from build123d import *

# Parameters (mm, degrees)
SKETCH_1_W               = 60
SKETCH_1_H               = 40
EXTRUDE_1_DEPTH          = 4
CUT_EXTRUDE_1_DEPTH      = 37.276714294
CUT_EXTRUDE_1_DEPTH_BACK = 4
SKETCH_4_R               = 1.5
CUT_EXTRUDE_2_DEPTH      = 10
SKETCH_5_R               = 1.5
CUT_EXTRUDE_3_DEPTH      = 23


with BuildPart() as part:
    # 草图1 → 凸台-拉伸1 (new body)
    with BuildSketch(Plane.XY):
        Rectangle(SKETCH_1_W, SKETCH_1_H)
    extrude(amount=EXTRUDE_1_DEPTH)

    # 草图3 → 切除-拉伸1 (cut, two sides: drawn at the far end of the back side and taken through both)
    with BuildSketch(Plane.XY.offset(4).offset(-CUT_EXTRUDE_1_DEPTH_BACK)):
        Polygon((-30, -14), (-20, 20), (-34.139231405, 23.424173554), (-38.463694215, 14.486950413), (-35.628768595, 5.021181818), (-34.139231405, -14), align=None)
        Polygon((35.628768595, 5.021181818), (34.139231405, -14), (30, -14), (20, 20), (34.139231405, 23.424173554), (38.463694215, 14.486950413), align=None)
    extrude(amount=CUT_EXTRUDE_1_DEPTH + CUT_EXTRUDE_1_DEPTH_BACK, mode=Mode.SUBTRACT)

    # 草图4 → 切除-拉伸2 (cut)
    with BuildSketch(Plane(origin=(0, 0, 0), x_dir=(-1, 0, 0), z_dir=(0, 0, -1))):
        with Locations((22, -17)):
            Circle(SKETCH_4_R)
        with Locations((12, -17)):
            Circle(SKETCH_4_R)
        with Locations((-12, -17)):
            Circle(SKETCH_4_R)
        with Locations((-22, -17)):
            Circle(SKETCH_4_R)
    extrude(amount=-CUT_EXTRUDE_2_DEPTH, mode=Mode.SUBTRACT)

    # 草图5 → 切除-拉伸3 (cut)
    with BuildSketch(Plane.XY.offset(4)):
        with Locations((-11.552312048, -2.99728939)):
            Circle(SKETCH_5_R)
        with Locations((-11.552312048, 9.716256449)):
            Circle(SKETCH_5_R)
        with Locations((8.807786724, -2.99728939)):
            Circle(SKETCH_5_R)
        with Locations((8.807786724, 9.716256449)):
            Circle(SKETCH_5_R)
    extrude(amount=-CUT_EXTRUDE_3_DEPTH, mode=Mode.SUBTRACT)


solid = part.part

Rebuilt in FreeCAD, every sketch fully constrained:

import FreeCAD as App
import Part
import Sketcher

V = App.Vector
Q = App.Units.Quantity


def add_polygon(sketch, points):
    """Adds a closed chain of lines whose ends are joined by coincident constraints."""
    first, n = sketch.GeometryCount, len(points)
    for a, b in zip(points, points[1:] + points[:1]):
        sketch.addGeometry(Part.LineSegment(App.Vector(*a, 0), App.Vector(*b, 0)), False)
    for i in range(n):
        sketch.addConstraint(Sketcher.Constraint("Coincident", first + i, 2, first + (i + 1) % n, 1))

doc = App.newDocument("Part")
body = doc.addObject("PartDesign::Body", "Body")

# Sketch on XY plane
sketch1 = doc.addObject("Sketcher::SketchObject", "Sketch")
body.addObject(sketch1)
sketch1.AttachmentSupport = (doc.XY_Plane, [""])
sketch1.MapMode = "FlatFace"
add_polygon(sketch1, [(-30, 20), (-30, -20), (30, -20), (30, 20)])  # lines 0-3
sketch1.addConstraint([
    Sketcher.Constraint("Vertical", 0),
    Sketcher.Constraint("Horizontal", 1),
    Sketcher.Constraint("Vertical", 2),
    Sketcher.Constraint("Horizontal", 3),
    Sketcher.Constraint("Symmetric", 0, 2, 2, 2, -1, 1),
    Sketcher.Constraint("DistanceX", 1, 1, 1, 2, Q("60 mm")),
    Sketcher.Constraint("DistanceY", 0, 2, 0, 1, Q("40 mm")),
])
pad1 = doc.addObject("PartDesign::Pad", "Pad")
body.addObject(pad1)
pad1.Profile = sketch1
pad1.Length = 4

# Sketch on XY plane
sketch2 = doc.addObject("Sketcher::SketchObject", "Sketch001")
body.addObject(sketch2)
sketch2.AttachmentSupport = (doc.XY_Plane, [""])
sketch2.MapMode = "FlatFace"
sketch2.AttachmentOffset = App.Placement(V(0, 0, 4), App.Rotation())
add_polygon(sketch2, [(-30, -14), (-20, 20), (-34.1, 23.4), (-38.5, 14.5), (-35.6, 5), (-34.1, -14)])  # lines 0-5
add_polygon(sketch2, [(34.1, -14), (35.6, 5), (38.5, 14.5), (34.1, 23.4), (20, 20), (30, -14)])  # lines 6-11
sketch2.addConstraint([
    Sketcher.Constraint("Horizontal", 5),
    Sketcher.Constraint("Horizontal", 11),
    Sketcher.Constraint("Symmetric", 3, 2, 6, 2, -2),
    Sketcher.Constraint("Symmetric", 2, 2, 7, 2, -2),
    Sketcher.Constraint("Symmetric", 1, 2, 8, 2, -2),
    Sketcher.Constraint("Symmetric", 0, 2, 9, 2, -2),
    Sketcher.Constraint("Symmetric", 5, 2, 10, 2, -2),
    Sketcher.Constraint("Vertical", 1, 2, 4, 2),
    Sketcher.Constraint("Vertical", 8, 2, 11, 2),
    Sketcher.Constraint("DistanceX", 0, 2, -1, 1, Q("20 mm")),
    Sketcher.Constraint("DistanceY", -1, 1, 0, 2, Q("20 mm")),
    Sketcher.Constraint("DistanceY", 4, 2, -1, 1, Q("14 mm")),
    Sketcher.Constraint("DistanceX", 5, 2, -1, 1, Q("30 mm")),
    Sketcher.Constraint("DistanceX", 1, 2, 6, 2, Q("69.768 mm")),
    Sketcher.Constraint("DistanceX", 5, 1, 5, 2, Q("4.139231 mm")),
    Sketcher.Constraint("Distance", 1, Q("14.547949 mm")),
    Sketcher.Constraint("Distance", 2, Q("9.928491 mm")),
    Sketcher.Constraint("DistanceY", -1, 1, 2, 2, Q("14.48695 mm")),
    Sketcher.Constraint("DistanceY", -1, 1, 3, 2, Q("5.021182 mm")),
])
pocket1 = doc.addObject("PartDesign::Pocket", "Pocket")
body.addObject(pocket1)
pocket1.Profile = sketch2
pocket1.Type = "ThroughAll"
pocket1.Midplane = True

# Sketch on XY plane
sketch3 = doc.addObject("Sketcher::SketchObject", "Sketch002")
body.addObject(sketch3)
sketch3.AttachmentSupport = (doc.XY_Plane, [""])
sketch3.MapMode = "FlatFace"
sketch3.addGeometry([
    Part.Circle(V(-22, -17, 0), V(0, 0, 1), 1.5),
    Part.Circle(V(-12, -17, 0), V(0, 0, 1), 1.5),
    Part.Circle(V(12, -17, 0), V(0, 0, 1), 1.5),
    Part.Circle(V(22, -17, 0), V(0, 0, 1), 1.5),
], False)
sketch3.addConstraint([
    Sketcher.Constraint("Equal", 0, 1),
    Sketcher.Constraint("Equal", 1, 2),
    Sketcher.Constraint("Equal", 2, 3),
    Sketcher.Constraint("Symmetric", 1, 3, 2, 3, -2),
    Sketcher.Constraint("Symmetric", 0, 3, 3, 3, -2),
    Sketcher.Constraint("Horizontal", 0, 3, 1, 3),
    Sketcher.Constraint("Diameter", 0, Q("3 mm")),
    Sketcher.Constraint("DistanceX", 0, 3, -1, 1, Q("22 mm")),
    Sketcher.Constraint("DistanceY", 0, 3, -1, 1, Q("17 mm")),
    Sketcher.Constraint("DistanceX", 1, 3, -1, 1, Q("12 mm")),
])
pocket2 = doc.addObject("PartDesign::Pocket", "Pocket001")
body.addObject(pocket2)
pocket2.Profile = sketch3
pocket2.Length = 10
pocket2.Reversed = True

# Sketch on XY plane
sketch4 = doc.addObject("Sketcher::SketchObject", "Sketch003")
body.addObject(sketch4)
sketch4.AttachmentSupport = (doc.XY_Plane, [""])
sketch4.MapMode = "FlatFace"
sketch4.AttachmentOffset = App.Placement(V(0, 0, 4), App.Rotation())
sketch4.addGeometry([
    Part.Circle(V(-11.6, -3, 0), V(0, 0, 1), 1.5),
    Part.Circle(V(-11.6, 9.7, 0), V(0, 0, 1), 1.5),
    Part.Circle(V(8.8, -3, 0), V(0, 0, 1), 1.5),
    Part.Circle(V(8.8, 9.7, 0), V(0, 0, 1), 1.5),
], False)
sketch4.addConstraint([
    Sketcher.Constraint("Equal", 0, 1),
    Sketcher.Constraint("Equal", 1, 2),
    Sketcher.Constraint("Equal", 2, 3),
    Sketcher.Constraint("Horizontal", 0, 3, 2, 3),
    Sketcher.Constraint("Horizontal", 1, 3, 3, 3),
    Sketcher.Constraint("Vertical", 0, 3, 1, 3),
    Sketcher.Constraint("Vertical", 2, 3, 3, 3),
    Sketcher.Constraint("Diameter", 0, Q("3 mm")),
    Sketcher.Constraint("DistanceX", 0, 3, 2, 3, Q("20.360099 mm")),
    Sketcher.Constraint("DistanceY", 0, 3, -1, 1, Q("2.997289 mm")),
    Sketcher.Constraint("DistanceX", 0, 3, -1, 1, Q("11.552312 mm")),
    Sketcher.Constraint("DistanceY", -1, 1, 1, 3, Q("9.716256 mm")),
])
pocket3 = doc.addObject("PartDesign::Pocket", "Pocket002")
body.addObject(pocket3)
pocket3.Profile = sketch4
pocket3.Length = 23

doc.recompute()
